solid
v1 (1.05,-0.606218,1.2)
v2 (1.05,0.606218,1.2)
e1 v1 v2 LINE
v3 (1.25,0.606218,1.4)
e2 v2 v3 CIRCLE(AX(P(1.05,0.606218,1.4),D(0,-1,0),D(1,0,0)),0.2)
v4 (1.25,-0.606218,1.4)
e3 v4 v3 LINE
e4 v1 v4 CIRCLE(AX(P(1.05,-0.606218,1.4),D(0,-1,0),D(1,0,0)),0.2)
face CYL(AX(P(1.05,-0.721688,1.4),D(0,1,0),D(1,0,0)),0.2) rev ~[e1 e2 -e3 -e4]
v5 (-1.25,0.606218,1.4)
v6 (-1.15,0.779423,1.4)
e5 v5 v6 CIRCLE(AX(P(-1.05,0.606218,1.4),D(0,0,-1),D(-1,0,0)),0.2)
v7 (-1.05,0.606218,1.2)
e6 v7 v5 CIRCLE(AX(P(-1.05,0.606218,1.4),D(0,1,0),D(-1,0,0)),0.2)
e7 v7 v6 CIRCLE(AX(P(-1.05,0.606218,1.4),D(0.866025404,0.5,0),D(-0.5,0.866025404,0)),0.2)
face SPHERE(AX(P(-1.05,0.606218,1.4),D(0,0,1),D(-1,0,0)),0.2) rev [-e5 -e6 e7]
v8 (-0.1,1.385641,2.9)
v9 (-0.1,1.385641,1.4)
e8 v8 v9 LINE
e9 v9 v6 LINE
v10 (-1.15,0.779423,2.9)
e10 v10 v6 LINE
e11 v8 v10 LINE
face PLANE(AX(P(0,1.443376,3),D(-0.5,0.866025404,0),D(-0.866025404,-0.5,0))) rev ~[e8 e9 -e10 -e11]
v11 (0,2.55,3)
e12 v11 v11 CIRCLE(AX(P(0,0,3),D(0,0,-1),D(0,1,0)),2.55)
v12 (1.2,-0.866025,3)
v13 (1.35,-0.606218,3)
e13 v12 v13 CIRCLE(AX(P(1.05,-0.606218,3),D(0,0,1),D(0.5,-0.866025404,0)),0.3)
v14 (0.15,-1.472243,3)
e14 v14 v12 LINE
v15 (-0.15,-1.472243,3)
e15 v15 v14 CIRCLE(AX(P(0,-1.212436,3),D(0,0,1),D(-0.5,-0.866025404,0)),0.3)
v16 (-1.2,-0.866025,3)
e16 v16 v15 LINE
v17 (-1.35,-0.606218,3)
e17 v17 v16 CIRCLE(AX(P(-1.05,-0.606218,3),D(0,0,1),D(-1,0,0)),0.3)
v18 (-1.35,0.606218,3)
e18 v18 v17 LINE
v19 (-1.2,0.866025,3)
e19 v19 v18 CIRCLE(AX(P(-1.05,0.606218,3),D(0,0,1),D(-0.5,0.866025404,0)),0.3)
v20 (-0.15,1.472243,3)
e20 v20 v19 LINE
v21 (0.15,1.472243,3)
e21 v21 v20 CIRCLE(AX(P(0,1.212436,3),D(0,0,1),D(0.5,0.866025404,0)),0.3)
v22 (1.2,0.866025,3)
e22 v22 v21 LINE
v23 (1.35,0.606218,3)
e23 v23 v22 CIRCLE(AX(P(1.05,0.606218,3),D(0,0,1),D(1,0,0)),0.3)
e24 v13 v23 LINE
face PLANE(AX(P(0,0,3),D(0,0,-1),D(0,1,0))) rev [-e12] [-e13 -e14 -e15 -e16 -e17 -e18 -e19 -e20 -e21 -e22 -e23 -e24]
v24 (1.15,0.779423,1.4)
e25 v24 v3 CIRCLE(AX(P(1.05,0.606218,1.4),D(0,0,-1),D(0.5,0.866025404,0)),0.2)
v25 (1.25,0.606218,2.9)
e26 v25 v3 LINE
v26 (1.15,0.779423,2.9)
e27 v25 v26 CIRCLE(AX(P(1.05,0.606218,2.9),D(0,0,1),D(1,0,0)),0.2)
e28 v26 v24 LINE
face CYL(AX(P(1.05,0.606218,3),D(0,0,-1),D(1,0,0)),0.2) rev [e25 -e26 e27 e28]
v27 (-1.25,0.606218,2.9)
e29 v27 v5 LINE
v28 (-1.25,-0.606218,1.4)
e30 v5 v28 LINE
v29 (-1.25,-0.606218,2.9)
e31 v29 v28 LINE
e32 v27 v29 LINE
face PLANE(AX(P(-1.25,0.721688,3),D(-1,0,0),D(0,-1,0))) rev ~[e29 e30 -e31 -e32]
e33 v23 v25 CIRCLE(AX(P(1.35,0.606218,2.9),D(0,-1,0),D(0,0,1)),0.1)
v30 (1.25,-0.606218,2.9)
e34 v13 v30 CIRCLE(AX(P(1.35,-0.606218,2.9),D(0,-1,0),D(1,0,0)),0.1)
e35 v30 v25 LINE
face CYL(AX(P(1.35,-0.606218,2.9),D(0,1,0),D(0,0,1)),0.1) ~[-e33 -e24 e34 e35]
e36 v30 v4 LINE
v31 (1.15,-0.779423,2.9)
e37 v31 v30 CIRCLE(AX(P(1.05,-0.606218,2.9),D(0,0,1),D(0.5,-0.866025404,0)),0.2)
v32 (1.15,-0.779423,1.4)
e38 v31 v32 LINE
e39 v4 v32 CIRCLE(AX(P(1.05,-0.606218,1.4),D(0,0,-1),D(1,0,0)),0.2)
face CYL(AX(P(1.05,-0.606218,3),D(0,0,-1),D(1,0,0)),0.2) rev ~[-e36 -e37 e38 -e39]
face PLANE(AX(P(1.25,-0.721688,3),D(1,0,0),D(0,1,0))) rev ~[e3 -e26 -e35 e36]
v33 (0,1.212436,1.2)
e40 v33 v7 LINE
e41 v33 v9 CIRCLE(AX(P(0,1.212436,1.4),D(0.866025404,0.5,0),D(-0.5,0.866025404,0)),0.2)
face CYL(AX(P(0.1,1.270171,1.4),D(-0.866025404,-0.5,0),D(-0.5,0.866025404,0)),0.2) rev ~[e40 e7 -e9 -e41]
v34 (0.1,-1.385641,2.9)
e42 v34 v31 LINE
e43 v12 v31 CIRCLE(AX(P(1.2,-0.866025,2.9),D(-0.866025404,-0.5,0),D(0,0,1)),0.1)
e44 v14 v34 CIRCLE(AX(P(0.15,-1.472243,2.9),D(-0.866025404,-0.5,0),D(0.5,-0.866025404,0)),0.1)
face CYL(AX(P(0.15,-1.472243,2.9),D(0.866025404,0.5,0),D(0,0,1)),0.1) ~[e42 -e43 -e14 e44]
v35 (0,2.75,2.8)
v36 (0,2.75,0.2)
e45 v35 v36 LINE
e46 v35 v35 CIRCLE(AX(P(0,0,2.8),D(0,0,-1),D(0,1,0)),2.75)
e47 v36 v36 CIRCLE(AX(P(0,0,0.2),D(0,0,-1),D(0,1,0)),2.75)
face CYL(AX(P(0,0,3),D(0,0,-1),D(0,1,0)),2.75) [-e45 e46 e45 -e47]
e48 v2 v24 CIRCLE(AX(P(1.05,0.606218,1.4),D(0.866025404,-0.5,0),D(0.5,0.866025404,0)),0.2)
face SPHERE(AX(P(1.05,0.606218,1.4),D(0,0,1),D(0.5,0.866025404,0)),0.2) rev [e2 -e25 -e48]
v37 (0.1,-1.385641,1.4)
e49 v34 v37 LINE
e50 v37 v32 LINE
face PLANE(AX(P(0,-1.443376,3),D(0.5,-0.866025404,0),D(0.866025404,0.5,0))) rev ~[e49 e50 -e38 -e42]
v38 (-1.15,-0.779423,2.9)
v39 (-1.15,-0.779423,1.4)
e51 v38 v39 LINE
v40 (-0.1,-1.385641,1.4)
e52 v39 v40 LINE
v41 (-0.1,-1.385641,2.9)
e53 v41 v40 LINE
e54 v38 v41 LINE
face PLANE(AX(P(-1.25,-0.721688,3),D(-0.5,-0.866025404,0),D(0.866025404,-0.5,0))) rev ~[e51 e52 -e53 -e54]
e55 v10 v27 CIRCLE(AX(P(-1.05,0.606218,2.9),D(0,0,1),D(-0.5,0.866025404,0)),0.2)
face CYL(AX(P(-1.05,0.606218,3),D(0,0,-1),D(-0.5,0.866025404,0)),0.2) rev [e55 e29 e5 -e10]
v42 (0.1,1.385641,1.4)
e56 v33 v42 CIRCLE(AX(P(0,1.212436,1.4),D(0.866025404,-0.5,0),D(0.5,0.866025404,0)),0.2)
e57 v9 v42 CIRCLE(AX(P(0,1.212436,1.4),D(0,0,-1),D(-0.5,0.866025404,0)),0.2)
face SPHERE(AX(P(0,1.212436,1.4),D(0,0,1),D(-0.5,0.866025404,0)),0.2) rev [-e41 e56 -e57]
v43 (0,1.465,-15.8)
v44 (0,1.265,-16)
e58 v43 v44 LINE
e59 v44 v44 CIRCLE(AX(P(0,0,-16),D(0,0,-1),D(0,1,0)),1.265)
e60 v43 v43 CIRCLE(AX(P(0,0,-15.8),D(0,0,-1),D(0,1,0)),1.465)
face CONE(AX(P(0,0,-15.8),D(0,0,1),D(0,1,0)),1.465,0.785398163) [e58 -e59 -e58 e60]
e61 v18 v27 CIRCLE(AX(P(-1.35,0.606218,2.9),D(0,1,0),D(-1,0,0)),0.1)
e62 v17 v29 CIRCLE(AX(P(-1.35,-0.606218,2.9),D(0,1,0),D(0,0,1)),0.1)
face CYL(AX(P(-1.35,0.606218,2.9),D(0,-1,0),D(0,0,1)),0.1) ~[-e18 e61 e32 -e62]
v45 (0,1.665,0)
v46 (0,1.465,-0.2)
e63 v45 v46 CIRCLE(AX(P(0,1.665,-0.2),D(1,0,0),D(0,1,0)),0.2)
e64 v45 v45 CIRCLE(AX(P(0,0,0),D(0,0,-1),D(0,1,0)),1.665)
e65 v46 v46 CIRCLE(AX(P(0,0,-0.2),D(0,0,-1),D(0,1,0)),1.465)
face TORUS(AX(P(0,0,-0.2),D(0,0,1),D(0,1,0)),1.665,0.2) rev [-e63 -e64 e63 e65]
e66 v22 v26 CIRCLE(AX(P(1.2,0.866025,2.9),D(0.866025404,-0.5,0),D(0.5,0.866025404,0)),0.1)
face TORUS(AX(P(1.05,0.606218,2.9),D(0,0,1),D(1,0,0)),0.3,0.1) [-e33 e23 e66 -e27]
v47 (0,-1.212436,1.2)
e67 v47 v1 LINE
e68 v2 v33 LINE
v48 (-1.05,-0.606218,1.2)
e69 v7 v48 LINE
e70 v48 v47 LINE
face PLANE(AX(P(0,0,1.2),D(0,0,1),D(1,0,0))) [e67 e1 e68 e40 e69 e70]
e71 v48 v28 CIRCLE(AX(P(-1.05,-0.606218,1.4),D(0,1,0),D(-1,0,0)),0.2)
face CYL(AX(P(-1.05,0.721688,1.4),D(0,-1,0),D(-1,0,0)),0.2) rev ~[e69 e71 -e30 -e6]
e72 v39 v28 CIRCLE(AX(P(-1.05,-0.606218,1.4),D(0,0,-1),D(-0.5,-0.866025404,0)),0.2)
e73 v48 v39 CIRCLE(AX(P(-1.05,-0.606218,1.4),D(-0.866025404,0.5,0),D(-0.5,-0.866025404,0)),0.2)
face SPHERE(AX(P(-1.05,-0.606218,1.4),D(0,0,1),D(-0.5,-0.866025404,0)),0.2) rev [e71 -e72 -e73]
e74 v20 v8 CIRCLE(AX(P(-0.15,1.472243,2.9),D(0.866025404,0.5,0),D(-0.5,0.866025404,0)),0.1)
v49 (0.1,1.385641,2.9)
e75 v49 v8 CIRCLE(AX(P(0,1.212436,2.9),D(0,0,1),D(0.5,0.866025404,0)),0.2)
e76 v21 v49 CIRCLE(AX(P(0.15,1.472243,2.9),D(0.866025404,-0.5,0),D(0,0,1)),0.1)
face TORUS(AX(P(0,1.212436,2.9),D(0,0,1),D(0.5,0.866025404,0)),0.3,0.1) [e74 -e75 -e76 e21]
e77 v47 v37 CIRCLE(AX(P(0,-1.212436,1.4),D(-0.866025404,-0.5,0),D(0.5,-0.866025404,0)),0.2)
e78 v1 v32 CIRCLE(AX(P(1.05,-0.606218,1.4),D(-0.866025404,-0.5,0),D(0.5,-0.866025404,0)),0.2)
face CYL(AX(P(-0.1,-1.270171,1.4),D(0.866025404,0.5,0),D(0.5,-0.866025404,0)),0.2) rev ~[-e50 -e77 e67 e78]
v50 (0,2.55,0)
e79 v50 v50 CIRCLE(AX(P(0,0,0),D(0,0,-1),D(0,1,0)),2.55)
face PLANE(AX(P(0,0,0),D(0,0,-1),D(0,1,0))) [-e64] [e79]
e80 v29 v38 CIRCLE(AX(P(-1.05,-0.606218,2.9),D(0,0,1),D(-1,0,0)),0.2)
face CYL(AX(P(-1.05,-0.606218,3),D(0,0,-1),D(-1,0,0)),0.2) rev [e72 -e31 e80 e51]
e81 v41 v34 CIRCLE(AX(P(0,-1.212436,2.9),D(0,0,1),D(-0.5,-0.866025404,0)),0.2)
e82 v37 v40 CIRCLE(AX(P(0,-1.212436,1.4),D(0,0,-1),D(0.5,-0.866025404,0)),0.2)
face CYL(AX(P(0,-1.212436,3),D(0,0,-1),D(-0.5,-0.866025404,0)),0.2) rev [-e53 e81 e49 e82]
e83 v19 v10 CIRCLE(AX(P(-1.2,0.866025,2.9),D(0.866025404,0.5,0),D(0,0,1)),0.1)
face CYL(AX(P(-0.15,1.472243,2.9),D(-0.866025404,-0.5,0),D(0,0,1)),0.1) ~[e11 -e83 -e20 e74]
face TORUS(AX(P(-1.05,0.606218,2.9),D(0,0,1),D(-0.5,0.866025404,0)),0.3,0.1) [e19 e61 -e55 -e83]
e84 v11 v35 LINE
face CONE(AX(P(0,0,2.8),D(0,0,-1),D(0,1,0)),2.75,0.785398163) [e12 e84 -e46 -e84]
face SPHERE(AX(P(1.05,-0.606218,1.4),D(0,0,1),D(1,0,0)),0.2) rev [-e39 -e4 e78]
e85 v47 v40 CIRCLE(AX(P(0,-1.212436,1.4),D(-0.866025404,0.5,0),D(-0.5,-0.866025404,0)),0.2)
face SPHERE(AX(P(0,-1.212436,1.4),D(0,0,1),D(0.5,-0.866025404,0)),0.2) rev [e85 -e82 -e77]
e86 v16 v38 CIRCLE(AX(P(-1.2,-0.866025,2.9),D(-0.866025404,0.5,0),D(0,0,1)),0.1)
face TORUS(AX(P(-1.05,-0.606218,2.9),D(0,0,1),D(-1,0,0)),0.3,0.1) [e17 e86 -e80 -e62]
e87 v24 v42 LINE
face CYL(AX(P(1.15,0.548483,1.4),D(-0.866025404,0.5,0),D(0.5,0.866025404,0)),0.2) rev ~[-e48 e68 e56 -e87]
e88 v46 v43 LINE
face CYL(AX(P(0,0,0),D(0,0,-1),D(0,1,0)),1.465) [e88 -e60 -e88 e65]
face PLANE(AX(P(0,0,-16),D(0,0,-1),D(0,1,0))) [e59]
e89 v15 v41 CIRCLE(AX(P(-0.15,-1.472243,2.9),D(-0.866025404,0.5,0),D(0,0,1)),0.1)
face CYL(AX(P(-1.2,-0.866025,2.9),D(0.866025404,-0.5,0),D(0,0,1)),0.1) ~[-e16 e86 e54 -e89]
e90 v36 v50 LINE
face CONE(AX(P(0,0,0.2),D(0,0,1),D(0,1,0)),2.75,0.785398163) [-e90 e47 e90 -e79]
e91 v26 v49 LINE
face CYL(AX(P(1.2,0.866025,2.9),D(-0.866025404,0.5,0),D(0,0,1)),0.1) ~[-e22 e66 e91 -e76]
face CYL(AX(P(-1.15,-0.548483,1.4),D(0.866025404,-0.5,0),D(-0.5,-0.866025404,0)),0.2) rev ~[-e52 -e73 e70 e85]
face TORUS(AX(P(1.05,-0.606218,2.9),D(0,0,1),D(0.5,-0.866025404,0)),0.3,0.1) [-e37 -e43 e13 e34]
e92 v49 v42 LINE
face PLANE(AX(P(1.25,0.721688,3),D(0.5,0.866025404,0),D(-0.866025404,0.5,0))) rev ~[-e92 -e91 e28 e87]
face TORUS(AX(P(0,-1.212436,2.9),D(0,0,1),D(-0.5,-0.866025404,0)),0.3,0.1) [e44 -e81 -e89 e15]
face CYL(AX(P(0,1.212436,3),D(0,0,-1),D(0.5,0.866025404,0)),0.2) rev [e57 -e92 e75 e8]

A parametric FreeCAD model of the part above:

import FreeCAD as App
import Part
import Sketcher
Q = App.Units.Quantity


def edges_at(feature, points):
    """Names of the edges that pass closest to the given points."""
    edges = feature.Shape.Edges
    near = lambda p: min(range(len(edges)), key=lambda i: edges[i].distToShape(Part.Vertex(*p))[0])
    return sorted({f"Edge{near(p) + 1}" for p in points})

doc = App.newDocument("Part")
body = doc.addObject("PartDesign::Body", "Body")

# Sketch on YZ plane
sketch1 = doc.addObject("Sketcher::SketchObject", "Sketch")
body.addObject(sketch1)
sketch1.AttachmentSupport = (doc.YZ_Plane, [""])
sketch1.MapMode = "FlatFace"
sketch1.addGeometry(Part.LineSegment(App.Vector(2.8, 3, 0), App.Vector(0, 3, 0)), False)
sketch1.addGeometry(Part.LineSegment(App.Vector(0, 3, 0), App.Vector(0, -16, 0)), False)
sketch1.addGeometry(Part.LineSegment(App.Vector(0, -16, 0), App.Vector(1.5, -16, 0)), False)
sketch1.addGeometry(Part.LineSegment(App.Vector(1.5, -16, 0), App.Vector(1.5, 0, 0)), False)
sketch1.addGeometry(Part.LineSegment(App.Vector(1.5, 0, 0), App.Vector(2.8, 0, 0)), False)
sketch1.addGeometry(Part.LineSegment(App.Vector(2.8, 0, 0), App.Vector(2.8, 3, 0)), False)
sketch1.addConstraint(Sketcher.Constraint("Coincident", 0, 2, 1, 1))
sketch1.addConstraint(Sketcher.Constraint("Coincident", 1, 2, 2, 1))
sketch1.addConstraint(Sketcher.Constraint("Coincident", 2, 2, 3, 1))
sketch1.addConstraint(Sketcher.Constraint("Coincident", 3, 2, 4, 1))
sketch1.addConstraint(Sketcher.Constraint("Coincident", 4, 2, 5, 1))
sketch1.addConstraint(Sketcher.Constraint("Coincident", 5, 2, 0, 1))
sketch1.addConstraint(Sketcher.Constraint("Horizontal", 0))
sketch1.addConstraint(Sketcher.Constraint("Vertical", 1))
sketch1.addConstraint(Sketcher.Constraint("Horizontal", 2))
sketch1.addConstraint(Sketcher.Constraint("Vertical", 3))
sketch1.addConstraint(Sketcher.Constraint("Horizontal", 4))
sketch1.addConstraint(Sketcher.Constraint("Vertical", 5))
sketch1.addConstraint(Sketcher.Constraint("PointOnObject", 0, 2, -2))
sketch1.addConstraint(Sketcher.Constraint("PointOnObject", 3, 2, -1))
sketch1.addConstraint(Sketcher.Constraint("DistanceY", 1, 2, 1, 1, 19.0))
sketch1.addConstraint(Sketcher.Constraint("DistanceY", 3, 1, 3, 2, 16.0))
sketch1.addConstraint(Sketcher.Constraint("DistanceX", 0, 2, 0, 1, 2.75))
sketch1.addConstraint(Sketcher.Constraint("DistanceX", 2, 1, 2, 2, 1.465))
revolution = doc.addObject("PartDesign::Revolution", "Revolution")
body.addObject(revolution)
revolution.Profile = sketch1
revolution.ReferenceAxis = (sketch1, ["V_Axis"])
revolution.Angle = 360

# Sketch on XY plane
sketch2 = doc.addObject("Sketcher::SketchObject", "Sketch001")
body.addObject(sketch2)
sketch2.AttachmentSupport = (doc.XY_Plane, [""])
sketch2.MapMode = "FlatFace"
sketch2.AttachmentOffset = App.Placement(App.Vector(0, 0, 3), App.Rotation())
sketch2.addGeometry(Part.LineSegment(App.Vector(1.2, -0.7, 0), App.Vector(1.2, 0.7, 0)), False)
sketch2.addGeometry(Part.LineSegment(App.Vector(1.2, 0.7, 0), App.Vector(0, 1.4, 0)), False)
sketch2.addGeometry(Part.LineSegment(App.Vector(0, 1.4, 0), App.Vector(-1.2, 0.7, 0)), False)
sketch2.addGeometry(Part.LineSegment(App.Vector(-1.2, 0.7, 0), App.Vector(-1.2, -0.7, 0)), False)
sketch2.addGeometry(Part.LineSegment(App.Vector(-1.2, -0.7, 0), App.Vector(0, -1.4, 0)), False)
sketch2.addGeometry(Part.LineSegment(App.Vector(0, -1.4, 0), App.Vector(1.2, -0.7, 0)), False)
sketch2.addConstraint(Sketcher.Constraint("Coincident", 0, 2, 1, 1))
sketch2.addConstraint(Sketcher.Constraint("Coincident", 1, 2, 2, 1))
sketch2.addConstraint(Sketcher.Constraint("Coincident", 2, 2, 3, 1))
sketch2.addConstraint(Sketcher.Constraint("Coincident", 3, 2, 4, 1))
sketch2.addConstraint(Sketcher.Constraint("Coincident", 4, 2, 5, 1))
sketch2.addConstraint(Sketcher.Constraint("Coincident", 5, 2, 0, 1))
sketch2.addConstraint(Sketcher.Constraint("Vertical", 0))
sketch2.addConstraint(Sketcher.Constraint("Vertical", 3))
sketch2.addConstraint(Sketcher.Constraint("Symmetric", 0, 2, 3, 2, -1, 1))
sketch2.addConstraint(Sketcher.Constraint("Symmetric", 1, 2, 4, 2, -1, 1))
sketch2.addConstraint(Sketcher.Constraint("PointOnObject", 1, 2, -2))
sketch2.addConstraint(Sketcher.Constraint("Parallel", 2, 5))
sketch2.addConstraint(Sketcher.Constraint("Horizontal", 0, 2, 2, 2))
sketch2.addConstraint(Sketcher.Constraint("Angle", 1, Q("150 deg")))
sketch2.addConstraint(Sketcher.Constraint("DistanceX", 2, 2, 0, 2, 2.5))
sketch2.addConstraint(Sketcher.Constraint("DistanceY", 0, 1, 0, 2, 1.443376))
pocket1 = doc.addObject("PartDesign::Pocket", "Pocket")
body.addObject(pocket1)
pocket1.Profile = sketch2
pocket1.Length = 1.8
doc.recompute()

chamfer = doc.addObject("PartDesign::Chamfer", "Chamfer")
body.addObject(chamfer)
chamfer.Base = (pocket1, edges_at(pocket1, [(0, -1.465, -16), (0, -2.75, 0), (0, -2.75, 3)]))
chamfer.Size = 0.2
doc.recompute()

fillet = doc.addObject("PartDesign::Fillet", "Fillet")
body.addObject(fillet)
fillet.Base = (chamfer, edges_at(chamfer, [
    (0.625, -1.083, 1.2),
    (1.25, -0.722, 2.1),
    (-0.625, -1.083, 1.2),
    (0, -1.443, 2.1),
    (-1.25, 0, 1.2),
    (-1.25, -0.722, 2.1),
    (-0.625, 1.083, 1.2),
    (-1.25, 0.722, 2.1),
    (0.625, 1.083, 1.2),
    (0, 1.443, 2.1),
    (1.25, 0, 1.2),
    (1.25, 0.722, 2.1),
    (0, -1.465, 0),
]))
fillet.Radius = 0.2
doc.recompute()

fillet2 = doc.addObject("PartDesign::Fillet", "Fillet001")
body.addObject(fillet2)
fillet2.Base = (fillet, edges_at(fillet, [
    (-0.625, -1.083, 3),
    (-1.25, 0, 3),
    (-0.625, 1.083, 3),
    (0.625, 1.083, 3),
    (1.25, 0, 3),
    (0.625, -1.083, 3),
    (-1.223, -0.706, 3),
    (0, -1.412, 3),
    (1.223, -0.706, 3),
    (1.223, 0.706, 3),
    (0, 1.412, 3),
    (-1.223, 0.706, 3),
]))
fillet2.Radius = 0.1

doc.recompute()
